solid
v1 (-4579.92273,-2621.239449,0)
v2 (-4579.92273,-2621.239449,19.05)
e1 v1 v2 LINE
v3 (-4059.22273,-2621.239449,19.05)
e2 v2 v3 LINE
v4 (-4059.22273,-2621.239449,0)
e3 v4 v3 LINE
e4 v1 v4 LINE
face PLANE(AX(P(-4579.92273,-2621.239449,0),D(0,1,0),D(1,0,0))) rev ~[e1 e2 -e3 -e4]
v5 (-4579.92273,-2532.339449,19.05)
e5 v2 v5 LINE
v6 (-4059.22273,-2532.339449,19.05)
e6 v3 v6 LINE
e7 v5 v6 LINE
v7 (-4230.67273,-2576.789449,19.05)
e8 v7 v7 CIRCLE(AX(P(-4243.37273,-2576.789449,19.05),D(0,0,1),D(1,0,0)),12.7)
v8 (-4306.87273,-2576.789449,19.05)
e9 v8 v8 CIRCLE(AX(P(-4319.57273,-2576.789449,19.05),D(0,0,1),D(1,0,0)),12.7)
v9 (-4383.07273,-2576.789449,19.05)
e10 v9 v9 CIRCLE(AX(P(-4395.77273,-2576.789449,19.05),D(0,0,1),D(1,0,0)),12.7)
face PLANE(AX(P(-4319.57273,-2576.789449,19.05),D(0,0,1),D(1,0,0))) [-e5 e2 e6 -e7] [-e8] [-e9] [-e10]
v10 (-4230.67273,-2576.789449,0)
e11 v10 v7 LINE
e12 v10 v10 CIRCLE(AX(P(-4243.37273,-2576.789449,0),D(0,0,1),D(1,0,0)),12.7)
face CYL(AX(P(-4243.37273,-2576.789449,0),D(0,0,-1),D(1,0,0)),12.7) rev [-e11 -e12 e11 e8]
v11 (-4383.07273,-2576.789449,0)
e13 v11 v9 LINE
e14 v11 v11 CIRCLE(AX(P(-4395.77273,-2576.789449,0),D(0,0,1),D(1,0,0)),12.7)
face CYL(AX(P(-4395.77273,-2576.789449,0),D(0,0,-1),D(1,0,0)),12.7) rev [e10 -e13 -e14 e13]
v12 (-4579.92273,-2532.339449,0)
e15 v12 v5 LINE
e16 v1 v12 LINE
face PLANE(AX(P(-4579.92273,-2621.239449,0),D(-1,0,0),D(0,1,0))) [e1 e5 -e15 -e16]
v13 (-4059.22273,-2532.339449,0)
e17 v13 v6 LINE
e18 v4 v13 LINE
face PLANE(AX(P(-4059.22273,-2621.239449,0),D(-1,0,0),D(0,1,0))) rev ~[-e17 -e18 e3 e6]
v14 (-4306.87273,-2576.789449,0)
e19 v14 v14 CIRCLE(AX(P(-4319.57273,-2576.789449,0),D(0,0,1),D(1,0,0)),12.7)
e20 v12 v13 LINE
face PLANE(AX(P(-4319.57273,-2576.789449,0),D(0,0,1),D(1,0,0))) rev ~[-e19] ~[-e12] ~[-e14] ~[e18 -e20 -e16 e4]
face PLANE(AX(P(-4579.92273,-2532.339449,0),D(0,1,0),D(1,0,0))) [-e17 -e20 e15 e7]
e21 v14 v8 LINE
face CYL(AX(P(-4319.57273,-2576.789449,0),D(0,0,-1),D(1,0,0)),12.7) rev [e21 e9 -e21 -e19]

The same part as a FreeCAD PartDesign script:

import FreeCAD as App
import Part
import Sketcher
from FreeCAD import Vector
Q = App.Units.Quantity


def add_polygon(sketch, points):
    """Adds a closed chain of lines whose ends are joined by coincident constraints."""
    first, n = sketch.GeometryCount, len(points)
    for a, b in zip(points, points[1:] + points[:1]):
        sketch.addGeometry(Part.LineSegment(App.Vector(*a, 0), App.Vector(*b, 0)), False)
    for i in range(n):
        sketch.addConstraint(Sketcher.Constraint("Coincident", first + i, 2, first + (i + 1) % n, 1))

doc = App.newDocument("Part")
body = doc.addObject("PartDesign::Body", "Body")

sketch1 = body.newObject("Sketcher::SketchObject", "Sketch")
sketch1.AttachmentSupport = (doc.getObject("XY_Plane"), [""])
sketch1.MapMode = "FlatFace"
add_polygon(sketch1, [(-4580, -2532), (-4580, -2621), (-4059, -2621), (-4059, -2532)])
sketch1.addGeometry(Part.Circle(Vector(-4396, -2577, 0), Vector(0, 0, 1), 13), False)
sketch1.addGeometry(Part.Circle(Vector(-4320, -2577, 0), Vector(0, 0, 1), 13), False)
sketch1.addGeometry(Part.Circle(Vector(-4243, -2577, 0), Vector(0, 0, 1), 13), False)
sketch1.addConstraint([
    Sketcher.Constraint("Vertical", 0),
    Sketcher.Constraint("Horizontal", 1),
    Sketcher.Constraint("Vertical", 2),
    Sketcher.Constraint("Horizontal", 3),
    Sketcher.Constraint("Equal", 4, 5),
    Sketcher.Constraint("Equal", 5, 6),
    Sketcher.Constraint("Horizontal", 4, 3, 5, 3),
    Sketcher.Constraint("Horizontal", 5, 3, 6, 3),
    Sketcher.Constraint("Diameter", 4, Q("1 in")),
    Sketcher.Constraint("DistanceX", 1, 1, 1, 2, Q("20.5 in")),
    Sketcher.Constraint("DistanceY", 0, 2, 0, 1, Q("3.5 in")),
    Sketcher.Constraint("DistanceX", 4, 3, 5, 3, Q("3 in")),
    Sketcher.Constraint("DistanceX", 5, 3, 6, 3, Q("3 in")),
    Sketcher.Constraint("DistanceX", 0, 2, 4, 3, Q("7.25 in")),
    Sketcher.Constraint("DistanceY", 0, 2, 4, 3, Q("1.75 in")),
    Sketcher.Constraint("DistanceX", 4, 3, -1, 1, Q("4395.77273 mm")),
    Sketcher.Constraint("DistanceY", 4, 3, -1, 1, Q("2576.789449 mm")),
])
pad1 = body.newObject("PartDesign::Pad", "Pad")
pad1.Profile = sketch1
pad1.Length = Q("0.75 in")

doc.recompute()
